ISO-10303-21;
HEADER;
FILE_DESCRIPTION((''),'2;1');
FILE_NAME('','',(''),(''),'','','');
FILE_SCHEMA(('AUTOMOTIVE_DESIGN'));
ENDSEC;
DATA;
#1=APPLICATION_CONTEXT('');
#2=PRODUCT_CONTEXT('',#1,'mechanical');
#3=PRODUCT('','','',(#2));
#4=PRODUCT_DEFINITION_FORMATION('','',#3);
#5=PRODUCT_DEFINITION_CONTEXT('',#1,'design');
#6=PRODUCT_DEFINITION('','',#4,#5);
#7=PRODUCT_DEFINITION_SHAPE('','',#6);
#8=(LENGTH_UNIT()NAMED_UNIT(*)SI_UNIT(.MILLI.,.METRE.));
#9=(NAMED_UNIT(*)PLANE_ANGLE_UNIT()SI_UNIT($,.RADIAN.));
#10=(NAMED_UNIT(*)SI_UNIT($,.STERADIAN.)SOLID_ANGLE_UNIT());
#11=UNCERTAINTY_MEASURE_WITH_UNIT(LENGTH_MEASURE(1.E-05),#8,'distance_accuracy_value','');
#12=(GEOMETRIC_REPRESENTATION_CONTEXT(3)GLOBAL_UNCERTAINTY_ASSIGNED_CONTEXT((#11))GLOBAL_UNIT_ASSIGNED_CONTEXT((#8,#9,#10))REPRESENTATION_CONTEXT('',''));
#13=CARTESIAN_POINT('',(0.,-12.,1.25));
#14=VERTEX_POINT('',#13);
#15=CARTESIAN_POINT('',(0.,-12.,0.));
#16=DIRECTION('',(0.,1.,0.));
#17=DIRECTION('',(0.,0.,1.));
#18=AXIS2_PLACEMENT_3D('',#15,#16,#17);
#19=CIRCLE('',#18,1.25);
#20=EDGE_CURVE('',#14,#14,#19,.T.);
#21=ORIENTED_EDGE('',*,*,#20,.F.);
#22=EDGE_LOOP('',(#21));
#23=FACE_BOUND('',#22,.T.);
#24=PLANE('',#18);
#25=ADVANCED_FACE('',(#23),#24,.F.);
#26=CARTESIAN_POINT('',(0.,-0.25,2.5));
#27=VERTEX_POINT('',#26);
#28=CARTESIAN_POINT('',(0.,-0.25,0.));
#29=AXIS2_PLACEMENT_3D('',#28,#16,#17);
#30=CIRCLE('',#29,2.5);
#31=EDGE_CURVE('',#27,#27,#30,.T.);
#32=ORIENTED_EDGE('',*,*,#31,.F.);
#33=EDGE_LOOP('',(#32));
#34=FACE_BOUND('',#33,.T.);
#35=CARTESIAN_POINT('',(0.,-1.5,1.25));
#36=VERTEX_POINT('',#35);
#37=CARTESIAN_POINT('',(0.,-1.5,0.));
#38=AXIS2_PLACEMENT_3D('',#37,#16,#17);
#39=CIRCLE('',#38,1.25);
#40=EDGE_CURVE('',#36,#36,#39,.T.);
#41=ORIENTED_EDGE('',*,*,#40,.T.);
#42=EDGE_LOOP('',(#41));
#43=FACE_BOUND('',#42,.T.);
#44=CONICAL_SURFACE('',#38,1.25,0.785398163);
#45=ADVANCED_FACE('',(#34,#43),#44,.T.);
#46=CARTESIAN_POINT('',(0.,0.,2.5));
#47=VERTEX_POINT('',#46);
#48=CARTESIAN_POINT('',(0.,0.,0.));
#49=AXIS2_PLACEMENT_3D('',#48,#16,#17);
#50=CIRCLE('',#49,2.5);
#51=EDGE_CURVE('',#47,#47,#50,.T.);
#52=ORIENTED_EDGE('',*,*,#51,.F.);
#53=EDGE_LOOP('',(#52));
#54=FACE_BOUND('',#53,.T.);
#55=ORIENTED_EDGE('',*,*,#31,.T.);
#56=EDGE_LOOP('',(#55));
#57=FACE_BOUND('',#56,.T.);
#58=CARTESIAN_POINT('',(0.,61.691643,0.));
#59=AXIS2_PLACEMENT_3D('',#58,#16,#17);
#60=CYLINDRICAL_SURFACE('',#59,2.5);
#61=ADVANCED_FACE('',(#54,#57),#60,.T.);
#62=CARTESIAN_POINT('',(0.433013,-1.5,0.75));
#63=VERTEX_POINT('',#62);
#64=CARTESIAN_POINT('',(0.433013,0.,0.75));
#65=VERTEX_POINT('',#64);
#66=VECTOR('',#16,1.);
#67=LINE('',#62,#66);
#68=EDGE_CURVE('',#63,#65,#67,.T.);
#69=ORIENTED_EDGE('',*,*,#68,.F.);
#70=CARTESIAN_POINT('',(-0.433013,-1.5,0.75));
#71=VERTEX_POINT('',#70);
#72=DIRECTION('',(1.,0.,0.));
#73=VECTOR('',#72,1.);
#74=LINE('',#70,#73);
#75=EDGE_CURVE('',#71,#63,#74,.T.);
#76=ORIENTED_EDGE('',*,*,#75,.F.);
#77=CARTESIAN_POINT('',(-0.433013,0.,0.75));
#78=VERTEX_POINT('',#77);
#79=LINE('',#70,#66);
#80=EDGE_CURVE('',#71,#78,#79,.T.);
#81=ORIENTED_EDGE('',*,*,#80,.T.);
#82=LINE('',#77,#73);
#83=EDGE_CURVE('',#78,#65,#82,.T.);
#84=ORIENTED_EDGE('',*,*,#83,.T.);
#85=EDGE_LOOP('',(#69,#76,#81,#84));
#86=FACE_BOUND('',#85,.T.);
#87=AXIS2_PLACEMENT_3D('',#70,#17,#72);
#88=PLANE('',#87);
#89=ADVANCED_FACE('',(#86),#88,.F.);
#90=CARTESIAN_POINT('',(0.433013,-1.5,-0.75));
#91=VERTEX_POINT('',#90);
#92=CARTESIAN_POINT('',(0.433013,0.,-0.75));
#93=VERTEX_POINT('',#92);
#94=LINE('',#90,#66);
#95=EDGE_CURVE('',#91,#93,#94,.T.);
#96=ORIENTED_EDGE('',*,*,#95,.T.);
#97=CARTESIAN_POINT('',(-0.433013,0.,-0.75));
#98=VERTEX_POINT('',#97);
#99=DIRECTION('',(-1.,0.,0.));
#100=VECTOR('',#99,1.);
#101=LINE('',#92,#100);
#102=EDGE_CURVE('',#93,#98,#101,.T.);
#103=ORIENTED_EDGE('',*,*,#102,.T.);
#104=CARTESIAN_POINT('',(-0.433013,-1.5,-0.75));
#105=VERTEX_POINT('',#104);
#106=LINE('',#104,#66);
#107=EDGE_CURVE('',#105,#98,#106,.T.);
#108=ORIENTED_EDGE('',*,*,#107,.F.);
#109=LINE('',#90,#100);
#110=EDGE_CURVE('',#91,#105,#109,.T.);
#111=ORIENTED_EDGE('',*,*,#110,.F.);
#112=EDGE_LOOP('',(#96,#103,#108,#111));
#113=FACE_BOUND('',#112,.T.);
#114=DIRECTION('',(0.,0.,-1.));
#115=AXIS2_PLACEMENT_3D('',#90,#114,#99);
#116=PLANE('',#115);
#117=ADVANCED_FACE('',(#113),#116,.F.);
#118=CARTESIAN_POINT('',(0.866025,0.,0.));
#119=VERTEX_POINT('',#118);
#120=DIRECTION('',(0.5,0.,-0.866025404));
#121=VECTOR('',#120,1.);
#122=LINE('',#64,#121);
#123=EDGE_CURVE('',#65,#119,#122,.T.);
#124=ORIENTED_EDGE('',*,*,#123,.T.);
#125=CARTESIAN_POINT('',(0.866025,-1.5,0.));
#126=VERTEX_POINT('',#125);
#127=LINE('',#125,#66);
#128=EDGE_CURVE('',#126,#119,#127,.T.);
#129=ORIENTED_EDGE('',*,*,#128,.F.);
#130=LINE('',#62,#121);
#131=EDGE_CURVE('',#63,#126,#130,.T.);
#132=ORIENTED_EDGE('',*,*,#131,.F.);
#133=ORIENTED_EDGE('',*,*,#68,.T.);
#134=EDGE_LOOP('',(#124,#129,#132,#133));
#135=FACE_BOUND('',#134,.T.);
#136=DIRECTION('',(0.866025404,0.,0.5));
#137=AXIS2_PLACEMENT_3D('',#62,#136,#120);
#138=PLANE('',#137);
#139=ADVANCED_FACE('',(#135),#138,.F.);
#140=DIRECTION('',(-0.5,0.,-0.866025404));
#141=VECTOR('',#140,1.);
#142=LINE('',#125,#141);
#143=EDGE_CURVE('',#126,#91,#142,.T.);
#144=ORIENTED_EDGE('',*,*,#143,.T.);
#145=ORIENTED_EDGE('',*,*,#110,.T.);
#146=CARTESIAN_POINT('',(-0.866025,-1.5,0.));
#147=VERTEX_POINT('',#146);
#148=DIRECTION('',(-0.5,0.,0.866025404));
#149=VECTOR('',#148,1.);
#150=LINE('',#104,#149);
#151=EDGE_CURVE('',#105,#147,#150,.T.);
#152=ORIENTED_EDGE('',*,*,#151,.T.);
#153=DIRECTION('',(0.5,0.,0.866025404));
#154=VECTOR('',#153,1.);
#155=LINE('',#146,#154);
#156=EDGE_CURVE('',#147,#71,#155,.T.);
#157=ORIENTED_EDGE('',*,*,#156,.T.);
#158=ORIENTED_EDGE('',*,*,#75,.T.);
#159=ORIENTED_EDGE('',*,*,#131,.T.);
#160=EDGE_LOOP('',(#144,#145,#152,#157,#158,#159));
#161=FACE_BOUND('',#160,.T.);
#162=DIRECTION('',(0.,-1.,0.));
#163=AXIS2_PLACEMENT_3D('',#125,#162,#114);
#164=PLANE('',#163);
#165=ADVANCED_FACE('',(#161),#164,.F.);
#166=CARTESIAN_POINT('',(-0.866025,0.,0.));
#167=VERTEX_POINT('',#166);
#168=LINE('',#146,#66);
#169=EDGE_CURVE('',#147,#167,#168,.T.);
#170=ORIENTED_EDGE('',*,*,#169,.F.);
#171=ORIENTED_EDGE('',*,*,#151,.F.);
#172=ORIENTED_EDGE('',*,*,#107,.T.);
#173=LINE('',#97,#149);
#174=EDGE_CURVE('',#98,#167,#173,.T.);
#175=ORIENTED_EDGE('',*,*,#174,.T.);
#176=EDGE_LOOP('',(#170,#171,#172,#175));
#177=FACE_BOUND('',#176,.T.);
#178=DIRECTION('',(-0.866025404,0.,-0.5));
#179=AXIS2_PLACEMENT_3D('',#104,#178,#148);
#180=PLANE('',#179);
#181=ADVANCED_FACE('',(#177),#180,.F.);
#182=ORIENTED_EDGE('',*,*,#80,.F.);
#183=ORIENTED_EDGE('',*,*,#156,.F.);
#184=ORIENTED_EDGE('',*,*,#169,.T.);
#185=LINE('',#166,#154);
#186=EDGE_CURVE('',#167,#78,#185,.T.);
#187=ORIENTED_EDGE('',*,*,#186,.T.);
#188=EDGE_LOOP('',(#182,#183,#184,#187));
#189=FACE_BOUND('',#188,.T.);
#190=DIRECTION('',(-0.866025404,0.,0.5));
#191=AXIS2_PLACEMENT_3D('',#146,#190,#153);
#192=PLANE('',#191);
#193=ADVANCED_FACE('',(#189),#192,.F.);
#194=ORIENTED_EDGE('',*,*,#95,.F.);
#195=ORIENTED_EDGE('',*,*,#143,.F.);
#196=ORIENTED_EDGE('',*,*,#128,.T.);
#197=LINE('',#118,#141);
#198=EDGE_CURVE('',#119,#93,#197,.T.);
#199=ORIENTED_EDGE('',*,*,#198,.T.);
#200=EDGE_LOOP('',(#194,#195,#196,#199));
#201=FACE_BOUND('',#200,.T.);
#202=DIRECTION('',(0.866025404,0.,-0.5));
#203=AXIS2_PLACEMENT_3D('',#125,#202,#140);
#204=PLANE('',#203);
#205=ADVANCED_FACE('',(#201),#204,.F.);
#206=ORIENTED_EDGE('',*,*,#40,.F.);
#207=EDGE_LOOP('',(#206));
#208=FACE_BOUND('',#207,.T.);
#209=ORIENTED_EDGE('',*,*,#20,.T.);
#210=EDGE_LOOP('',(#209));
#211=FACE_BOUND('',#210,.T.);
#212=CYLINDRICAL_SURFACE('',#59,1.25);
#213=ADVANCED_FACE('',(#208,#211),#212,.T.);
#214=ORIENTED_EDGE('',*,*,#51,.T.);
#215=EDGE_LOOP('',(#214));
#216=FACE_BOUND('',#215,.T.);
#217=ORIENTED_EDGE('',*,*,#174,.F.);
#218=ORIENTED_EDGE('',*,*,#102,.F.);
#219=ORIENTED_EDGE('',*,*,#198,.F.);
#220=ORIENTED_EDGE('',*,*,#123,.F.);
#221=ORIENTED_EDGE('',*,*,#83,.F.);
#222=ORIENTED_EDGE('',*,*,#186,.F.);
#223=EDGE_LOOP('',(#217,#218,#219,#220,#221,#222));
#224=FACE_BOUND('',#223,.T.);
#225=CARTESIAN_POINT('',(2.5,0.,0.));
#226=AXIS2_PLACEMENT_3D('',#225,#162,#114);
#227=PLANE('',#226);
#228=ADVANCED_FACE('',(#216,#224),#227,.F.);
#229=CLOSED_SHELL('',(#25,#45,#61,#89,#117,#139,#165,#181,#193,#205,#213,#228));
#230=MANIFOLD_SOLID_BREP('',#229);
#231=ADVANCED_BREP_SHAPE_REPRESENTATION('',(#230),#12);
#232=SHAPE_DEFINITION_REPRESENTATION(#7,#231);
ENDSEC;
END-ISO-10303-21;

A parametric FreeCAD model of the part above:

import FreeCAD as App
import Part
import Sketcher
Q = App.Units.Quantity

doc = App.newDocument("Part")
body = doc.addObject("PartDesign::Body", "Body")

sketch1 = body.newObject("Sketcher::SketchObject", "Sketch")
sketch1.AttachmentSupport = (doc.getObject("XY_Plane"), [""])
sketch1.MapMode = "FlatFace"
sketch1.addGeometry(Part.LineSegment(App.Vector(0, -12, 0), App.Vector(1.25, -12, 0)), False)
sketch1.addGeometry(Part.LineSegment(App.Vector(1.25, -12, 0), App.Vector(1.25, -1.5, 0)), False)
sketch1.addGeometry(Part.LineSegment(App.Vector(1.25, -1.5, 0), App.Vector(2.5, -0.25, 0)), False)
sketch1.addGeometry(Part.LineSegment(App.Vector(2.5, -0.25, 0), App.Vector(2.5, 0, 0)), False)
sketch1.addGeometry(Part.LineSegment(App.Vector(2.5, 0, 0), App.Vector(0, 0, 0)), False)
sketch1.addGeometry(Part.LineSegment(App.Vector(0, 0, 0), App.Vector(0, -12, 0)), False)
sketch1.addConstraint(Sketcher.Constraint("Coincident", 0, 2, 1, 1))
sketch1.addConstraint(Sketcher.Constraint("Coincident", 1, 2, 2, 1))
sketch1.addConstraint(Sketcher.Constraint("Coincident", 2, 2, 3, 1))
sketch1.addConstraint(Sketcher.Constraint("Coincident", 3, 2, 4, 1))
sketch1.addConstraint(Sketcher.Constraint("Coincident", 4, 2, 5, 1))
sketch1.addConstraint(Sketcher.Constraint("Coincident", 5, 2, 0, 1))
sketch1.addConstraint(Sketcher.Constraint("Horizontal", 0))
sketch1.addConstraint(Sketcher.Constraint("Vertical", 1))
sketch1.addConstraint(Sketcher.Constraint("Vertical", 3))
sketch1.addConstraint(Sketcher.Constraint("Horizontal", 4))
sketch1.addConstraint(Sketcher.Constraint("Vertical", 5))
sketch1.addConstraint(Sketcher.Constraint("Coincident", 4, 2, -1, 1))
sketch1.addConstraint(Sketcher.Constraint("DistanceY", 5, 2, 5, 1, 12.0))
sketch1.addConstraint(Sketcher.Constraint("Angle", 2, Q("45 deg")))
sketch1.addConstraint(Sketcher.Constraint("DistanceX", 4, 2, 4, 1, 2.5))
sketch1.addConstraint(Sketcher.Constraint("DistanceY", 1, 1, 1, 2, 10.5))
sketch1.addConstraint(Sketcher.Constraint("DistanceX", 0, 1, 0, 2, 1.25))
revolution = body.newObject("PartDesign::Revolution", "Revolution")
revolution.Profile = sketch1
revolution.ReferenceAxis = (sketch1, ["V_Axis"])
revolution.Angle = 360

sketch2 = body.newObject("Sketcher::SketchObject", "Sketch001")
sketch2.AttachmentSupport = (doc.getObject("XZ_Plane"), [""])
sketch2.MapMode = "FlatFace"
sketch2.addGeometry(Part.LineSegment(App.Vector(0.4, -0.8, 0), App.Vector(-0.4, -0.8, 0)), False)
sketch2.addGeometry(Part.LineSegment(App.Vector(-0.4, -0.8, 0), App.Vector(-0.9, 0, 0)), False)
sketch2.addGeometry(Part.LineSegment(App.Vector(-0.9, 0, 0), App.Vector(-0.4, 0.8, 0)), False)
sketch2.addGeometry(Part.LineSegment(App.Vector(-0.4, 0.8, 0), App.Vector(0.4, 0.8, 0)), False)
sketch2.addGeometry(Part.LineSegment(App.Vector(0.4, 0.8, 0), App.Vector(0.9, 0, 0)), False)
sketch2.addGeometry(Part.LineSegment(App.Vector(0.9, 0, 0), App.Vector(0.4, -0.8, 0)), False)
sketch2.addConstraint(Sketcher.Constraint("Coincident", 0, 2, 1, 1))
sketch2.addConstraint(Sketcher.Constraint("Coincident", 1, 2, 2, 1))
sketch2.addConstraint(Sketcher.Constraint("Coincident", 2, 2, 3, 1))
sketch2.addConstraint(Sketcher.Constraint("Coincident", 3, 2, 4, 1))
sketch2.addConstraint(Sketcher.Constraint("Coincident", 4, 2, 5, 1))
sketch2.addConstraint(Sketcher.Constraint("Coincident", 5, 2, 0, 1))
sketch2.addConstraint(Sketcher.Constraint("Horizontal", 0))
sketch2.addConstraint(Sketcher.Constraint("Horizontal", 3))
sketch2.addConstraint(Sketcher.Constraint("Symmetric", 0, 2, 3, 2, -1, 1))
sketch2.addConstraint(Sketcher.Constraint("Symmetric", 1, 2, 4, 2, -1, 1))
sketch2.addConstraint(Sketcher.Constraint("PointOnObject", 1, 2, -1))
sketch2.addConstraint(Sketcher.Constraint("Parallel", 2, 5))
sketch2.addConstraint(Sketcher.Constraint("Vertical", 0, 2, 2, 2))
sketch2.addConstraint(Sketcher.Constraint("Angle", 1, Q("120 deg")))
sketch2.addConstraint(Sketcher.Constraint("DistanceY", 0, 2, 2, 2, 1.5))
sketch2.addConstraint(Sketcher.Constraint("DistanceX", 0, 2, 0, 1, 0.866025))
pocket1 = body.newObject("PartDesign::Pocket", "Pocket")
pocket1.Profile = sketch2
pocket1.Length = 1.5
pocket1.Reversed = True

doc.recompute()
